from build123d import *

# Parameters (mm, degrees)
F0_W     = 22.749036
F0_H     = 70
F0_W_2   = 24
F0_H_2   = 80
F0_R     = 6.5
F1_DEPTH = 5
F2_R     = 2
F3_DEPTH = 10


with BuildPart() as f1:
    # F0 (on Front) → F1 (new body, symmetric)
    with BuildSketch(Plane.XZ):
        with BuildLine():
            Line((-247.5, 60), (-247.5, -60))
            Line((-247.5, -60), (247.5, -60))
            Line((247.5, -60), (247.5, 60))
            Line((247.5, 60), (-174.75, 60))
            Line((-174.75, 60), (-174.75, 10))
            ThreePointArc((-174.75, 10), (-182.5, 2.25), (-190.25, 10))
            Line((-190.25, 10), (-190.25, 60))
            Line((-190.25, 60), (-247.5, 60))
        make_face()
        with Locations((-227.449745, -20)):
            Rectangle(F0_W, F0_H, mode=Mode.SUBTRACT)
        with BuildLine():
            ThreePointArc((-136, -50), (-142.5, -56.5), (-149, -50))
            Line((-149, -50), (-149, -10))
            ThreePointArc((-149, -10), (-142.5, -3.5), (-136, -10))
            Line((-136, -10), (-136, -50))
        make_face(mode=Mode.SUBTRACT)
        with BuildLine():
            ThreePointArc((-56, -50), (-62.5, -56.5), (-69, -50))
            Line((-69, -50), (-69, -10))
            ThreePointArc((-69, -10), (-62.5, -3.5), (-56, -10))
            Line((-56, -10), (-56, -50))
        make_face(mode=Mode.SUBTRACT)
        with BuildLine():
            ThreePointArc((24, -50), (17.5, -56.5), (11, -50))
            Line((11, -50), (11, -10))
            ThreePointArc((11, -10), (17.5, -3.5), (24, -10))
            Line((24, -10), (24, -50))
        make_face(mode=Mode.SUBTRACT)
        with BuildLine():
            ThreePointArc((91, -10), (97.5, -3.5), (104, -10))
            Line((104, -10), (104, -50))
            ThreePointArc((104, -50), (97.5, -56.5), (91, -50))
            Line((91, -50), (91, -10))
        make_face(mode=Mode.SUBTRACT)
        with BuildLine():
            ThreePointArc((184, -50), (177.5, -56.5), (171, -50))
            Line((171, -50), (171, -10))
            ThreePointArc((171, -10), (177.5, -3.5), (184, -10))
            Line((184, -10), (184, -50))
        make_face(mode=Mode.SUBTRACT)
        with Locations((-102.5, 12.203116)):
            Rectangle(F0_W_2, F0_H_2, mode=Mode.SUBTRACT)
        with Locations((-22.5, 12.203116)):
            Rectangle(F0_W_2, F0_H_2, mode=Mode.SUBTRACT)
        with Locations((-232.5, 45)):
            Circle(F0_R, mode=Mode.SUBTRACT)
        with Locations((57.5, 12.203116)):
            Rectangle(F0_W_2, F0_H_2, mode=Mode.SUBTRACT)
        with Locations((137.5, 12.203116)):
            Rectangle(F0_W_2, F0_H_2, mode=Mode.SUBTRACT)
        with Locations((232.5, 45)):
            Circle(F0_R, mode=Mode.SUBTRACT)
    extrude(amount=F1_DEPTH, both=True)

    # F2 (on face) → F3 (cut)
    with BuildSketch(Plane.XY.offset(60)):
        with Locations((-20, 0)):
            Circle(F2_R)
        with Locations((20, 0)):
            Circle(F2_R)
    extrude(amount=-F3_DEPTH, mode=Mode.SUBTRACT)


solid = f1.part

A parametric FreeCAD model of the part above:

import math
import FreeCAD as App
import Part
import Sketcher

V = App.Vector

doc = App.newDocument("Part")
body = doc.addObject("PartDesign::Body", "Body")

# Sketch on XZ plane
sketch1 = body.newObject("Sketcher::SketchObject", "Sketch")
sketch1.AttachmentSupport = (doc.getObject("XZ_Plane"), [""])
sketch1.MapMode = "FlatFace"
sketch1.addGeometry(Part.LineSegment(V(-248, 60, 0), V(-248, -60, 0)), False)
sketch1.addGeometry(Part.LineSegment(V(-248, -60, 0), V(248, -60, 0)), False)
sketch1.addGeometry(Part.LineSegment(V(248, -60, 0), V(248, 60, 0)), False)
sketch1.addGeometry(Part.LineSegment(V(248, 60, 0), V(-175, 60, 0)), False)
sketch1.addGeometry(Part.LineSegment(V(-175, 60, 0), V(-175, 10, 0)), False)
sketch1.addGeometry(Part.ArcOfCircle(Part.Circle(V(-182, 10, 0), V(0, 0, 1), 8), math.radians(180), math.radians(360)), False)
sketch1.addGeometry(Part.LineSegment(V(-190, 10, 0), V(-190, 60, 0)), False)
sketch1.addGeometry(Part.LineSegment(V(-190, 60, 0), V(-248, 60, 0)), False)
sketch1.addGeometry(Part.LineSegment(V(-136, -10, 0), V(-136, -50, 0)), False)
sketch1.addGeometry(Part.ArcOfCircle(Part.Circle(V(-142, -50, 0), V(0, 0, 1), 6), math.radians(180), math.radians(360)), False)
sketch1.addGeometry(Part.LineSegment(V(-149, -50, 0), V(-149, -10, 0)), False)
sketch1.addGeometry(Part.ArcOfCircle(Part.Circle(V(-142, -10, 0), V(0, 0, 1), 6), math.radians(0), math.radians(180)), False)
sketch1.addGeometry(Part.LineSegment(V(-56, -10, 0), V(-56, -50, 0)), False)
sketch1.addGeometry(Part.ArcOfCircle(Part.Circle(V(-62, -50, 0), V(0, 0, 1), 6), math.radians(180), math.radians(360)), False)
sketch1.addGeometry(Part.LineSegment(V(-69, -50, 0), V(-69, -10, 0)), False)
sketch1.addGeometry(Part.ArcOfCircle(Part.Circle(V(-62, -10, 0), V(0, 0, 1), 6), math.radians(0), math.radians(180)), False)
sketch1.addGeometry(Part.LineSegment(V(-216, -55, 0), V(-239, -55, 0)), False)
sketch1.addGeometry(Part.LineSegment(V(-239, -55, 0), V(-239, 15, 0)), False)
sketch1.addGeometry(Part.LineSegment(V(-239, 15, 0), V(-216, 15, 0)), False)
sketch1.addGeometry(Part.LineSegment(V(-216, 15, 0), V(-216, -55, 0)), False)
sketch1.addGeometry(Part.LineSegment(V(24, -10, 0), V(24, -50, 0)), False)
sketch1.addGeometry(Part.ArcOfCircle(Part.Circle(V(18, -50, 0), V(0, 0, 1), 6), math.radians(180), math.radians(360)), False)
sketch1.addGeometry(Part.LineSegment(V(11, -50, 0), V(11, -10, 0)), False)
sketch1.addGeometry(Part.ArcOfCircle(Part.Circle(V(18, -10, 0), V(0, 0, 1), 6), math.radians(0), math.radians(180)), False)
sketch1.addGeometry(Part.LineSegment(V(91, -50, 0), V(91, -10, 0)), False)
sketch1.addGeometry(Part.ArcOfCircle(Part.Circle(V(98, -10, 0), V(0, 0, 1), 6), math.radians(0), math.radians(180)), False)
sketch1.addGeometry(Part.LineSegment(V(104, -10, 0), V(104, -50, 0)), False)
sketch1.addGeometry(Part.ArcOfCircle(Part.Circle(V(98, -50, 0), V(0, 0, 1), 6), math.radians(180), math.radians(360)), False)
sketch1.addGeometry(Part.LineSegment(V(184, -10, 0), V(184, -50, 0)), False)
sketch1.addGeometry(Part.ArcOfCircle(Part.Circle(V(178, -50, 0), V(0, 0, 1), 6), math.radians(180), math.radians(360)), False)
sketch1.addGeometry(Part.LineSegment(V(171, -50, 0), V(171, -10, 0)), False)
sketch1.addGeometry(Part.ArcOfCircle(Part.Circle(V(178, -10, 0), V(0, 0, 1), 6), math.radians(0), math.radians(180)), False)
sketch1.addGeometry(Part.LineSegment(V(-90, -28, 0), V(-114, -28, 0)), False)
sketch1.addGeometry(Part.LineSegment(V(-114, -28, 0), V(-114, 52, 0)), False)
sketch1.addGeometry(Part.LineSegment(V(-114, 52, 0), V(-90, 52, 0)), False)
sketch1.addGeometry(Part.LineSegment(V(-90, 52, 0), V(-90, -28, 0)), False)
sketch1.addGeometry(Part.LineSegment(V(-10, -28, 0), V(-34, -28, 0)), False)
sketch1.addGeometry(Part.LineSegment(V(-34, -28, 0), V(-34, 52, 0)), False)
sketch1.addGeometry(Part.LineSegment(V(-34, 52, 0), V(-10, 52, 0)), False)
sketch1.addGeometry(Part.LineSegment(V(-10, 52, 0), V(-10, -28, 0)), False)
sketch1.addGeometry(Part.Circle(V(-232, 45, 0), V(0, 0, 1), 6), False)
sketch1.addGeometry(Part.LineSegment(V(70, -28, 0), V(46, -28, 0)), False)
sketch1.addGeometry(Part.LineSegment(V(46, -28, 0), V(46, 52, 0)), False)
sketch1.addGeometry(Part.LineSegment(V(46, 52, 0), V(70, 52, 0)), False)
sketch1.addGeometry(Part.LineSegment(V(70, 52, 0), V(70, -28, 0)), False)
sketch1.addGeometry(Part.LineSegment(V(150, -28, 0), V(126, -28, 0)), False)
sketch1.addGeometry(Part.LineSegment(V(126, -28, 0), V(126, 52, 0)), False)
sketch1.addGeometry(Part.LineSegment(V(126, 52, 0), V(150, 52, 0)), False)
sketch1.addGeometry(Part.LineSegment(V(150, 52, 0), V(150, -28, 0)), False)
sketch1.addGeometry(Part.Circle(V(232, 45, 0), V(0, 0, 1), 6), False)
sketch1.addConstraint(Sketcher.Constraint("Coincident", 0, 2, 1, 1))
sketch1.addConstraint(Sketcher.Constraint("Coincident", 1, 2, 2, 1))
sketch1.addConstraint(Sketcher.Constraint("Coincident", 2, 2, 3, 1))
sketch1.addConstraint(Sketcher.Constraint("Coincident", 3, 2, 4, 1))
sketch1.addConstraint(Sketcher.Constraint("Tangent", 4, 2, 5, 2))
sketch1.addConstraint(Sketcher.Constraint("Tangent", 5, 1, 6, 1))
sketch1.addConstraint(Sketcher.Constraint("Coincident", 6, 2, 7, 1))
sketch1.addConstraint(Sketcher.Constraint("Coincident", 7, 2, 0, 1))
sketch1.addConstraint(Sketcher.Constraint("Tangent", 8, 2, 9, 2))
sketch1.addConstraint(Sketcher.Constraint("Tangent", 9, 1, 10, 1))
sketch1.addConstraint(Sketcher.Constraint("Tangent", 10, 2, 11, 2))
sketch1.addConstraint(Sketcher.Constraint("Tangent", 11, 1, 8, 1))
sketch1.addConstraint(Sketcher.Constraint("Tangent", 12, 2, 13, 2))
sketch1.addConstraint(Sketcher.Constraint("Tangent", 13, 1, 14, 1))
sketch1.addConstraint(Sketcher.Constraint("Tangent", 14, 2, 15, 2))
sketch1.addConstraint(Sketcher.Constraint("Tangent", 15, 1, 12, 1))
sketch1.addConstraint(Sketcher.Constraint("Coincident", 16, 2, 17, 1))
sketch1.addConstraint(Sketcher.Constraint("Coincident", 17, 2, 18, 1))
sketch1.addConstraint(Sketcher.Constraint("Coincident", 18, 2, 19, 1))
sketch1.addConstraint(Sketcher.Constraint("Coincident", 19, 2, 16, 1))
sketch1.addConstraint(Sketcher.Constraint("Tangent", 20, 2, 21, 2))
sketch1.addConstraint(Sketcher.Constraint("Tangent", 21, 1, 22, 1))
sketch1.addConstraint(Sketcher.Constraint("Tangent", 22, 2, 23, 2))
sketch1.addConstraint(Sketcher.Constraint("Tangent", 23, 1, 20, 1))
sketch1.addConstraint(Sketcher.Constraint("Tangent", 24, 2, 25, 2))
sketch1.addConstraint(Sketcher.Constraint("Tangent", 25, 1, 26, 1))
sketch1.addConstraint(Sketcher.Constraint("Tangent", 26, 2, 27, 2))
sketch1.addConstraint(Sketcher.Constraint("Tangent", 27, 1, 24, 1))
sketch1.addConstraint(Sketcher.Constraint("Tangent", 28, 2, 29, 2))
sketch1.addConstraint(Sketcher.Constraint("Tangent", 29, 1, 30, 1))
sketch1.addConstraint(Sketcher.Constraint("Tangent", 30, 2, 31, 2))
sketch1.addConstraint(Sketcher.Constraint("Tangent", 31, 1, 28, 1))
sketch1.addConstraint(Sketcher.Constraint("Coincident", 32, 2, 33, 1))
sketch1.addConstraint(Sketcher.Constraint("Coincident", 33, 2, 34, 1))
sketch1.addConstraint(Sketcher.Constraint("Coincident", 34, 2, 35, 1))
sketch1.addConstraint(Sketcher.Constraint("Coincident", 35, 2, 32, 1))
sketch1.addConstraint(Sketcher.Constraint("Coincident", 36, 2, 37, 1))
sketch1.addConstraint(Sketcher.Constraint("Coincident", 37, 2, 38, 1))
sketch1.addConstraint(Sketcher.Constraint("Coincident", 38, 2, 39, 1))
sketch1.addConstraint(Sketcher.Constraint("Coincident", 39, 2, 36, 1))
sketch1.addConstraint(Sketcher.Constraint("Coincident", 41, 2, 42, 1))
sketch1.addConstraint(Sketcher.Constraint("Coincident", 42, 2, 43, 1))
sketch1.addConstraint(Sketcher.Constraint("Coincident", 43, 2, 44, 1))
sketch1.addConstraint(Sketcher.Constraint("Coincident", 44, 2, 41, 1))
sketch1.addConstraint(Sketcher.Constraint("Coincident", 45, 2, 46, 1))
sketch1.addConstraint(Sketcher.Constraint("Coincident", 46, 2, 47, 1))
sketch1.addConstraint(Sketcher.Constraint("Coincident", 47, 2, 48, 1))
sketch1.addConstraint(Sketcher.Constraint("Coincident", 48, 2, 45, 1))
sketch1.addConstraint(Sketcher.Constraint("Vertical", 0))
sketch1.addConstraint(Sketcher.Constraint("Horizontal", 1))
sketch1.addConstraint(Sketcher.Constraint("Vertical", 2))
sketch1.addConstraint(Sketcher.Constraint("Horizontal", 3))
sketch1.addConstraint(Sketcher.Constraint("Vertical", 4))
sketch1.addConstraint(Sketcher.Constraint("Vertical", 6))
sketch1.addConstraint(Sketcher.Constraint("Horizontal", 7))
sketch1.addConstraint(Sketcher.Constraint("Vertical", 8))
sketch1.addConstraint(Sketcher.Constraint("Vertical", 10))
sketch1.addConstraint(Sketcher.Constraint("Vertical", 12))
sketch1.addConstraint(Sketcher.Constraint("Vertical", 14))
sketch1.addConstraint(Sketcher.Constraint("Horizontal", 16))
sketch1.addConstraint(Sketcher.Constraint("Vertical", 17))
sketch1.addConstraint(Sketcher.Constraint("Horizontal", 18))
sketch1.addConstraint(Sketcher.Constraint("Vertical", 19))
sketch1.addConstraint(Sketcher.Constraint("Vertical", 20))
sketch1.addConstraint(Sketcher.Constraint("Vertical", 22))
sketch1.addConstraint(Sketcher.Constraint("Vertical", 24))
sketch1.addConstraint(Sketcher.Constraint("Vertical", 26))
sketch1.addConstraint(Sketcher.Constraint("Vertical", 28))
sketch1.addConstraint(Sketcher.Constraint("Vertical", 30))
sketch1.addConstraint(Sketcher.Constraint("Horizontal", 32))
sketch1.addConstraint(Sketcher.Constraint("Vertical", 33))
sketch1.addConstraint(Sketcher.Constraint("Horizontal", 34))
sketch1.addConstraint(Sketcher.Constraint("Vertical", 35))
sketch1.addConstraint(Sketcher.Constraint("Horizontal", 36))
sketch1.addConstraint(Sketcher.Constraint("Vertical", 37))
sketch1.addConstraint(Sketcher.Constraint("Horizontal", 38))
sketch1.addConstraint(Sketcher.Constraint("Vertical", 39))
sketch1.addConstraint(Sketcher.Constraint("Horizontal", 41))
sketch1.addConstraint(Sketcher.Constraint("Vertical", 42))
sketch1.addConstraint(Sketcher.Constraint("Horizontal", 43))
sketch1.addConstraint(Sketcher.Constraint("Vertical", 44))
sketch1.addConstraint(Sketcher.Constraint("Horizontal", 45))
sketch1.addConstraint(Sketcher.Constraint("Vertical", 46))
sketch1.addConstraint(Sketcher.Constraint("Horizontal", 47))
sketch1.addConstraint(Sketcher.Constraint("Vertical", 48))
sketch1.addConstraint(Sketcher.Constraint("Equal", 11, 13))
sketch1.addConstraint(Sketcher.Constraint("Equal", 15, 21))
sketch1.addConstraint(Sketcher.Constraint("Equal", 23, 25))
sketch1.addConstraint(Sketcher.Constraint("Equal", 27, 29))
sketch1.addConstraint(Sketcher.Constraint("Equal", 31, 40))
sketch1.addConstraint(Sketcher.Constraint("Equal", 40, 49))
sketch1.addConstraint(Sketcher.Constraint("Symmetric", 0, 2, 2, 2, -1, 1))
sketch1.addConstraint(Sketcher.Constraint("Symmetric", 40, 3, 49, 3, -2))
sketch1.addConstraint(Sketcher.Constraint("Horizontal", 9, 3, 13, 3))
sketch1.addConstraint(Sketcher.Constraint("Horizontal", 11, 3, 15, 3))
sketch1.addConstraint(Sketcher.Constraint("Horizontal", 13, 3, 21, 3))
sketch1.addConstraint(Sketcher.Constraint("Horizontal", 15, 3, 23, 3))
sketch1.addConstraint(Sketcher.Constraint("Horizontal", 23, 3, 25, 3))
sketch1.addConstraint(Sketcher.Constraint("Horizontal", 21, 3, 27, 3))
sketch1.addConstraint(Sketcher.Constraint("Horizontal", 27, 3, 29, 3))
sketch1.addConstraint(Sketcher.Constraint("Horizontal", 25, 3, 31, 3))
sketch1.addConstraint(Sketcher.Constraint("Horizontal", 3, 2, 6, 2))
sketch1.addConstraint(Sketcher.Constraint("Horizontal", 35, 2, 36, 2))
sketch1.addConstraint(Sketcher.Constraint("Horizontal", 34, 2, 37, 2))
sketch1.addConstraint(Sketcher.Constraint("Horizontal", 39, 2, 41, 2))
sketch1.addConstraint(Sketcher.Constraint("Horizontal", 38, 2, 42, 2))
sketch1.addConstraint(Sketcher.Constraint("Horizontal", 44, 2, 45, 2))
sketch1.addConstraint(Sketcher.Constraint("Horizontal", 43, 2, 46, 2))
sketch1.addConstraint(Sketcher.Constraint("Equal", 34, 36))
sketch1.addConstraint(Sketcher.Constraint("Equal", 38, 41))
sketch1.addConstraint(Sketcher.Constraint("Equal", 43, 45))
sketch1.addConstraint(Sketcher.Constraint("Diameter", 40, 13.0))
sketch1.addConstraint(Sketcher.Constraint("DistanceX", 1, 1, 1, 2, 495.0))
sketch1.addConstraint(Sketcher.Constraint("DistanceX", 32, 2, 32, 1, 24.0))
sketch1.addConstraint(Sketcher.Constraint("DistanceY", 0, 2, 0, 1, 120.0))
sketch1.addConstraint(Sketcher.Constraint("DistanceY", 4, 2, 4, 1, 50.0))
sketch1.addConstraint(Sketcher.Constraint("DistanceY", 8, 2, 8, 1, 40.0))
sketch1.addConstraint(Sketcher.Constraint("DistanceY", 17, 1, 17, 2, 70.0))
sketch1.addConstraint(Sketcher.Constraint("DistanceY", 33, 1, 33, 2, 80.0))
sketch1.addConstraint(Sketcher.Constraint("Radius", 5, 7.75))
sketch1.addConstraint(Sketcher.Constraint("DistanceY", 9, 3, -1, 1, 50.0))
sketch1.addConstraint(Sketcher.Constraint("DistanceY", -1, 1, 40, 3, 45.0))
sketch1.addConstraint(Sketcher.Constraint("DistanceX", 8, 2, -1, 1, 136.0))
sketch1.addConstraint(Sketcher.Constraint("DistanceX", 12, 2, -1, 1, 56.0))
sketch1.addConstraint(Sketcher.Constraint("DistanceY", 16, 2, -1, 1, 55.0))
sketch1.addConstraint(Sketcher.Constraint("DistanceX", -1, 1, 20, 2, 24.0))
sketch1.addConstraint(Sketcher.Constraint("DistanceX", -1, 1, 24, 2, 91.0))
sketch1.addConstraint(Sketcher.Constraint("DistanceX", -1, 1, 28, 2, 184.0))
sketch1.addConstraint(Sketcher.Constraint("DistanceX", 3, 2, 3, 1, 422.25))
sketch1.addConstraint(Sketcher.Constraint("DistanceX", 40, 3, -1, 1, 232.5))
sketch1.addConstraint(Sketcher.Constraint("DistanceX", 32, 2, -1, 1, 114.5))
sketch1.addConstraint(Sketcher.Constraint("DistanceX", 36, 2, -1, 1, 34.5))
sketch1.addConstraint(Sketcher.Constraint("DistanceX", -1, 1, 41, 2, 45.5))
sketch1.addConstraint(Sketcher.Constraint("DistanceX", -1, 1, 45, 2, 125.5))
sketch1.addConstraint(Sketcher.Constraint("DistanceX", 16, 2, 16, 1, 22.749036))
sketch1.addConstraint(Sketcher.Constraint("DistanceX", 16, 2, -1, 1, 238.824263))
sketch1.addConstraint(Sketcher.Constraint("DistanceY", 32, 2, -1, 1, 27.796884))
pad1 = body.newObject("PartDesign::Pad", "Pad")
pad1.Profile = sketch1
pad1.Length = 10
pad1.Midplane = True

# Sketch on XY plane
sketch2 = body.newObject("Sketcher::SketchObject", "Sketch001")
sketch2.AttachmentSupport = (doc.getObject("XY_Plane"), [""])
sketch2.MapMode = "FlatFace"
sketch2.AttachmentOffset = App.Placement(V(0, 0, 60), App.Rotation())
sketch2.addGeometry(Part.Circle(V(-20, 0, 0), V(0, 0, 1), 2), False)
sketch2.addGeometry(Part.Circle(V(20, 0, 0), V(0, 0, 1), 2), False)
sketch2.addConstraint(Sketcher.Constraint("Equal", 0, 1))
sketch2.addConstraint(Sketcher.Constraint("Symmetric", 0, 3, 1, 3, -1, 1))
sketch2.addConstraint(Sketcher.Constraint("PointOnObject", 0, 3, -1))
sketch2.addConstraint(Sketcher.Constraint("Diameter", 0, 4.0))
sketch2.addConstraint(Sketcher.Constraint("DistanceX", 0, 3, -1, 1, 20.0))
pocket1 = body.newObject("PartDesign::Pocket", "Pocket")
pocket1.Profile = sketch2
pocket1.Length = 10

doc.recompute()
